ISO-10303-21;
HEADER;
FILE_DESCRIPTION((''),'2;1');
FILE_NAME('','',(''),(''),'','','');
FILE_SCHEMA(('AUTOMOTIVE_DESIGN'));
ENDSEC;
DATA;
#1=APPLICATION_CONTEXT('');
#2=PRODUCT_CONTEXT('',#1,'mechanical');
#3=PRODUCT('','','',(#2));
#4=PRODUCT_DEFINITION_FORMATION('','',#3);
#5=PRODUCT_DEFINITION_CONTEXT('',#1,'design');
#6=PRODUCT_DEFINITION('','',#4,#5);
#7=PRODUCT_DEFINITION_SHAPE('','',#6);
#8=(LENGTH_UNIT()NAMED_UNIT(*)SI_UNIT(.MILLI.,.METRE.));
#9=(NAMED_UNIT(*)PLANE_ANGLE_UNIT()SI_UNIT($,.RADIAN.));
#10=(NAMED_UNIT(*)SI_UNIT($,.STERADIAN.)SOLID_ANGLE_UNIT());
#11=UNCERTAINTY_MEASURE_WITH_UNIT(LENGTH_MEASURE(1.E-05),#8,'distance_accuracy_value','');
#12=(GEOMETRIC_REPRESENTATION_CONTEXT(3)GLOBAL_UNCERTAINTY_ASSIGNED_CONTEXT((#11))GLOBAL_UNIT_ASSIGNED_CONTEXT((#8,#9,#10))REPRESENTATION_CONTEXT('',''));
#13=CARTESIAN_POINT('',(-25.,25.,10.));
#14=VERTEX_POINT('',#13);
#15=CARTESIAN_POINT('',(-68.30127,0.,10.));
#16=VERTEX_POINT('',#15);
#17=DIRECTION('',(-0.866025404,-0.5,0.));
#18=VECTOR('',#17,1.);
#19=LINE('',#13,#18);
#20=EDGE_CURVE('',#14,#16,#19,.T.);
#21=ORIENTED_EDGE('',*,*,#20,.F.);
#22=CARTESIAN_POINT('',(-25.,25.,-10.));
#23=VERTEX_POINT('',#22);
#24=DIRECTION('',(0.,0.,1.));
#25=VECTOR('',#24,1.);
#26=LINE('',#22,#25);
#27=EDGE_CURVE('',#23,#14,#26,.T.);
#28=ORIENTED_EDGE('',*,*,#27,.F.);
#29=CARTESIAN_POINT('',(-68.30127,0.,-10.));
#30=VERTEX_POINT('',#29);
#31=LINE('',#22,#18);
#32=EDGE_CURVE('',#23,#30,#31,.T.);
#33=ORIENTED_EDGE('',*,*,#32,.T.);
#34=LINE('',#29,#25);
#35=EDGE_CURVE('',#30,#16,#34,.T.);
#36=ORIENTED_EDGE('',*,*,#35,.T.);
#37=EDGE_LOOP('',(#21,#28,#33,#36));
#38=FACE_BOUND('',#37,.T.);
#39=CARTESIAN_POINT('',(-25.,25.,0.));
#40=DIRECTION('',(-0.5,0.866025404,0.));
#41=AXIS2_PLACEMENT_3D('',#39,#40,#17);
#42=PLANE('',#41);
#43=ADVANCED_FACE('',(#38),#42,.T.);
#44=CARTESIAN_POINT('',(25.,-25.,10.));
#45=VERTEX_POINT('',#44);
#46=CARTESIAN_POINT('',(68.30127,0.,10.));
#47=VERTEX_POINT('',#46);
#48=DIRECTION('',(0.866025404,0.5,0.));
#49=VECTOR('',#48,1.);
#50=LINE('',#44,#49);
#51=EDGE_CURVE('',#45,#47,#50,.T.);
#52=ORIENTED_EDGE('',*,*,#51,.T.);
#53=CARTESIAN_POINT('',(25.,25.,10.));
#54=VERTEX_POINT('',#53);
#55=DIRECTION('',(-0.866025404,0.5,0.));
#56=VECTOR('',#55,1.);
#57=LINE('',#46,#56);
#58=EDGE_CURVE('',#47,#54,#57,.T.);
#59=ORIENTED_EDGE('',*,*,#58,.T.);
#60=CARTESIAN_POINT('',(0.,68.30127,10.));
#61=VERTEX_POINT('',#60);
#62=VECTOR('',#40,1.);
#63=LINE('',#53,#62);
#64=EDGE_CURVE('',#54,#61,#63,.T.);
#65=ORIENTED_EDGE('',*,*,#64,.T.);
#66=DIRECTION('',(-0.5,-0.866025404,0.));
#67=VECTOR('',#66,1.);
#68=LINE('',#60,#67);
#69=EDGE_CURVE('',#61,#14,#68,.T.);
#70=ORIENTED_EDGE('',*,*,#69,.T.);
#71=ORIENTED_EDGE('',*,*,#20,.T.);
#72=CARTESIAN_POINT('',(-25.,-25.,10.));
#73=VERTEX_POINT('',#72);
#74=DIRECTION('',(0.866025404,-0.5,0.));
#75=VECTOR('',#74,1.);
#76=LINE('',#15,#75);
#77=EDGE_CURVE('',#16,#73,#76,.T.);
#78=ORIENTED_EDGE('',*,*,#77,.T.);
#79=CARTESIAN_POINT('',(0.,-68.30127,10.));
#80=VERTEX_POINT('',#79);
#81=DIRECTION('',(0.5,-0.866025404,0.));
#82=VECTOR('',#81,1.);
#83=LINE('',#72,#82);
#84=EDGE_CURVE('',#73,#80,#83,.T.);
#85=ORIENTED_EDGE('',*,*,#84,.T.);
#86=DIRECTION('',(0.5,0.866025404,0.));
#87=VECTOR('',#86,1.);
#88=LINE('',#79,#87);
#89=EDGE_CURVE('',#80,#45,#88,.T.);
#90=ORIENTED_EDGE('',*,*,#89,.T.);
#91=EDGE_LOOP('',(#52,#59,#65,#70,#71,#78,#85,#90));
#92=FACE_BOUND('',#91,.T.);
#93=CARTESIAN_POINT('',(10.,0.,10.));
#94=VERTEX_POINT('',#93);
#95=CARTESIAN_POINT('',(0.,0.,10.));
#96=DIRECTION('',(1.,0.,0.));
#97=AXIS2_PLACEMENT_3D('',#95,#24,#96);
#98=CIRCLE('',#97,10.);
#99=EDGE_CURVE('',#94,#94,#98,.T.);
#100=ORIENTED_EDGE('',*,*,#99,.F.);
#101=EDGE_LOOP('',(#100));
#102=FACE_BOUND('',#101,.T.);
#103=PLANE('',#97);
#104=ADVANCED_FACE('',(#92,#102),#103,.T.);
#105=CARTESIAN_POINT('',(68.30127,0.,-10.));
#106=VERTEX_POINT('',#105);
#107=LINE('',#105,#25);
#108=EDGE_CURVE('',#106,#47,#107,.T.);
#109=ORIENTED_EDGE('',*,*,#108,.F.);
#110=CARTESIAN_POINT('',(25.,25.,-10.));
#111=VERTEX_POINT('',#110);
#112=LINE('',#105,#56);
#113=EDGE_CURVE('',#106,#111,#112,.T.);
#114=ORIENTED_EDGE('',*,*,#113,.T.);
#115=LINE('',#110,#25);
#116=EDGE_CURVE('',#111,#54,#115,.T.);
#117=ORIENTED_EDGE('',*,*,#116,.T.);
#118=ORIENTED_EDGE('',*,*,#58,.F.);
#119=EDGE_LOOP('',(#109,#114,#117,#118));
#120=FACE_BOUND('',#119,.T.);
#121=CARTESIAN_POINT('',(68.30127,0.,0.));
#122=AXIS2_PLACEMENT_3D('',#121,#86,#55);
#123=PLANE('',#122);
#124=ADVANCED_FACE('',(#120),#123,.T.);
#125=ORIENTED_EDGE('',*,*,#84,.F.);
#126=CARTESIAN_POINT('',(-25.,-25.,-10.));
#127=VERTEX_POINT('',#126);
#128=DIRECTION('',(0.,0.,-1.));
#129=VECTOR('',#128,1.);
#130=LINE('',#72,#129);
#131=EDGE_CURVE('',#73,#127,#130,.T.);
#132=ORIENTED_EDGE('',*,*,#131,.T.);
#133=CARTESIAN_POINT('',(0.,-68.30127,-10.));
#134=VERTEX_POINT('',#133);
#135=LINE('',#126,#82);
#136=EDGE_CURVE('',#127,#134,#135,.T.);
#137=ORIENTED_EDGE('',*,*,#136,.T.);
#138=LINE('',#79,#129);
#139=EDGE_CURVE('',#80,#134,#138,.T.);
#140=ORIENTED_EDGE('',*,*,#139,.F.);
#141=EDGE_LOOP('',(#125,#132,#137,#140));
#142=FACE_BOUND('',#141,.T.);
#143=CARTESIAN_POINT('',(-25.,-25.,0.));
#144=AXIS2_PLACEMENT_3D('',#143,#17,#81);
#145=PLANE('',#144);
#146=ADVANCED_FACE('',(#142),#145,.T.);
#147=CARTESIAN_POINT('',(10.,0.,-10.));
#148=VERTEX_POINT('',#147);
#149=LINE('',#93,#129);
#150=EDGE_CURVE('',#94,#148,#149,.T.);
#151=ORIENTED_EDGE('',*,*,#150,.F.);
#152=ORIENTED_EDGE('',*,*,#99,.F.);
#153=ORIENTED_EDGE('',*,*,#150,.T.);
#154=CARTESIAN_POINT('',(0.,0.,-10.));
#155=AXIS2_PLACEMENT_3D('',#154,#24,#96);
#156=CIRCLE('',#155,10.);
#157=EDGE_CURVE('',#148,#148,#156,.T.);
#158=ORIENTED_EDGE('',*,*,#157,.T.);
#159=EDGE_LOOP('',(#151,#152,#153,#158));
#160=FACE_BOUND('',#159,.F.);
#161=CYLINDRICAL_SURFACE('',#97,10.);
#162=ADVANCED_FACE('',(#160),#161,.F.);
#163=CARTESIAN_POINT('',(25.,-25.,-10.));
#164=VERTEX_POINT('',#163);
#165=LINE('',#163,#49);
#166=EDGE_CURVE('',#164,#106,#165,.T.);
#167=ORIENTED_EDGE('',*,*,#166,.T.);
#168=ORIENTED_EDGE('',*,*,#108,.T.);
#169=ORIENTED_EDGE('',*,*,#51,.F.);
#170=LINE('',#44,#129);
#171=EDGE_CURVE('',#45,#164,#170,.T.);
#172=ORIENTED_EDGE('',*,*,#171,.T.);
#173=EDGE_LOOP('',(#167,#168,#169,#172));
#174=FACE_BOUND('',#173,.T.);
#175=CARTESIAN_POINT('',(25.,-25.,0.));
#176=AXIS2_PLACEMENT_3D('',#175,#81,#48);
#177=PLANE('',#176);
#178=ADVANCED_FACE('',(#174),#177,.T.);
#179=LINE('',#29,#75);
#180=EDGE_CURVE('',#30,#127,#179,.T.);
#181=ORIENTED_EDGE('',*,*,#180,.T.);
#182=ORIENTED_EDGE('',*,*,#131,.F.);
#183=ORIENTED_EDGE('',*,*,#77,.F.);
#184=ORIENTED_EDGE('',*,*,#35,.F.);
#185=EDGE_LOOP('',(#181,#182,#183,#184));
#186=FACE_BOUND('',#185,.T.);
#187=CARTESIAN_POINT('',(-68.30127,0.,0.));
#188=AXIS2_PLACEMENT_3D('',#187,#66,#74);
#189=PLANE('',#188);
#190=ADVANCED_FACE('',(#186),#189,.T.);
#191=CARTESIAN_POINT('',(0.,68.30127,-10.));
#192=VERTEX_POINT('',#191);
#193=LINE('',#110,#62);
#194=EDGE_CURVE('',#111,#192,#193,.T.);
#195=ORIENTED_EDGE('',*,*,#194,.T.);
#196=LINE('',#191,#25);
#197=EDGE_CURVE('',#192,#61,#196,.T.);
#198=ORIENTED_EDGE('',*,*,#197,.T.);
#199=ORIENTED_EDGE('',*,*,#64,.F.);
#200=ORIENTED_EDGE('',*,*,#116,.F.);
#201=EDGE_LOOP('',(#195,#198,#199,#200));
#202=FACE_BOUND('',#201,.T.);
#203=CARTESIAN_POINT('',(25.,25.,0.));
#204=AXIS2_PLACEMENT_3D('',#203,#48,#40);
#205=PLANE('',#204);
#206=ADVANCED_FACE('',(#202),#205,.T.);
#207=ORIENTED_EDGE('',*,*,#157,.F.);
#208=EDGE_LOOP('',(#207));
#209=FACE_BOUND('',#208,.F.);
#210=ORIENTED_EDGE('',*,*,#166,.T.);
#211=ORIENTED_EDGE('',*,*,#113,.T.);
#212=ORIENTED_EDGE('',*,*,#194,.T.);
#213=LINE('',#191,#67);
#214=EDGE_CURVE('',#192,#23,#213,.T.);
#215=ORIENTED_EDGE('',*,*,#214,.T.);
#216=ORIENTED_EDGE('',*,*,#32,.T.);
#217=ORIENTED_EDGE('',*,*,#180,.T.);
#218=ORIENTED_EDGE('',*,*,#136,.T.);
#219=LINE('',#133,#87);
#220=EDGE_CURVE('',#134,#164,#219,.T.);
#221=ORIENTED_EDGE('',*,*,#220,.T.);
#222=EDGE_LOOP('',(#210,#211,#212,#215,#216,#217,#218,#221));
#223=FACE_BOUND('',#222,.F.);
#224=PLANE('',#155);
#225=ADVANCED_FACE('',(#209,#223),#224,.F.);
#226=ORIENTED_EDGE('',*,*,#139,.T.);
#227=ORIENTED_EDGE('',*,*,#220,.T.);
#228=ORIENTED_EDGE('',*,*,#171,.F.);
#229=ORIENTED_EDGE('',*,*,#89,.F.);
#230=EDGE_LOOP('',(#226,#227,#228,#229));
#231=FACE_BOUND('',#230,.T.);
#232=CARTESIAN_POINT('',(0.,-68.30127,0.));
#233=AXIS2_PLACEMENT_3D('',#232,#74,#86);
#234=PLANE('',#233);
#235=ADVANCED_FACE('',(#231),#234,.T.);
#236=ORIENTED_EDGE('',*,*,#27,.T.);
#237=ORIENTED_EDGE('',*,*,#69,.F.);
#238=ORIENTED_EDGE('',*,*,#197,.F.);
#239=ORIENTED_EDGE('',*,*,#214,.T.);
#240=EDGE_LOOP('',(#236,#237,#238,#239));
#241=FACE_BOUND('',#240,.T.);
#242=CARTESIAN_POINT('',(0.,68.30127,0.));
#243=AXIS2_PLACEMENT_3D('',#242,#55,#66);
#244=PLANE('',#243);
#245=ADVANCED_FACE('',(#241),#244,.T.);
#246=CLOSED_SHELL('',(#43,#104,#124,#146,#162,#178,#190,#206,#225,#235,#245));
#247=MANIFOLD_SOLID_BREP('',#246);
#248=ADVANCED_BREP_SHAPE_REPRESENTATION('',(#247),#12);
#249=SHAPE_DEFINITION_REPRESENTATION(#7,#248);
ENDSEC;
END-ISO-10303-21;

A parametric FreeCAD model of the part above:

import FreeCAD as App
import Part
import Sketcher

V = App.Vector
Q = App.Units.Quantity

doc = App.newDocument("Part")
params = doc.addObject("Spreadsheet::Sheet", "Params")
for row, (alias, value) in enumerate([
    ("sketch1_length", "50 mm"),
    ("pad1_length", "10 mm"),
    ("pad1_length2", "10 mm"),
    ("sketch2_diameter", "20 mm"),
], start=1):
    params.set(f"A{row}", alias)
    params.set(f"B{row}", "=" + value)
    params.setAlias(f"B{row}", alias)

body = doc.addObject("PartDesign::Body", "Body")

# Sketch on XY plane
sketch1 = body.newObject("Sketcher::SketchObject", "Sketch")
sketch1.AttachmentSupport = (doc.getObject("XY_Plane"), [""])
sketch1.MapMode = "FlatFace"
sketch1.addGeometry([
    Part.LineSegment(V(25, -25, 0), V(68, 0, 0)),  # 0
    Part.LineSegment(V(68, 0, 0), V(25, 25, 0)),  # 1
    Part.LineSegment(V(25, 25, 0), V(0, 68, 0)),  # 2
    Part.LineSegment(V(0, 68, 0), V(-25, 25, 0)),  # 3
    Part.LineSegment(V(-25, 25, 0), V(-68, 0, 0)),  # 4
    Part.LineSegment(V(-68, 0, 0), V(-25, -25, 0)),  # 5
    Part.LineSegment(V(-25, -25, 0), V(0, -68, 0)),  # 6
    Part.LineSegment(V(0, -68, 0), V(25, -25, 0)),  # 7
], False)
sketch1.addConstraint([
    Sketcher.Constraint("Coincident", 0, 2, 1, 1),
    Sketcher.Constraint("Coincident", 1, 2, 2, 1),
    Sketcher.Constraint("Coincident", 2, 2, 3, 1),
    Sketcher.Constraint("Coincident", 3, 2, 4, 1),
    Sketcher.Constraint("Coincident", 4, 2, 5, 1),
    Sketcher.Constraint("Coincident", 5, 2, 6, 1),
    Sketcher.Constraint("Coincident", 6, 2, 7, 1),
    Sketcher.Constraint("Coincident", 7, 2, 0, 1),
    Sketcher.Constraint("Symmetric", 0, 2, 4, 2, -1, 1),
    Sketcher.Constraint("Symmetric", 1, 2, 5, 2, -1, 1),
    Sketcher.Constraint("Symmetric", 2, 2, 6, 2, -1, 1),
    Sketcher.Constraint("Symmetric", 3, 2, 7, 2, -1, 1),
    Sketcher.Constraint("Symmetric", 1, 2, 3, 2, -2),
    Sketcher.Constraint("PointOnObject", 0, 2, -1),
    Sketcher.Constraint("PointOnObject", 2, 2, -2),
    Sketcher.Constraint("Perpendicular", 0, 2),
    Sketcher.Constraint("Equal", 1, 2),
    Sketcher.Constraint("Angle", 0, Q("30 deg")),
    Sketcher.Constraint("Distance", 0, Q("50 mm")),
])
sketch1.setExpression("Constraints[18]", "Params.sketch1_length")
pad1 = body.newObject("PartDesign::Pad", "Pad")
pad1.Profile = sketch1
pad1.Type = "TwoLengths"
pad1.setExpression("Length", "Params.pad1_length")
pad1.setExpression("Length2", "Params.pad1_length2")

# Sketch on XY plane
sketch2 = body.newObject("Sketcher::SketchObject", "Sketch001")
sketch2.AttachmentSupport = (doc.getObject("XY_Plane"), [""])
sketch2.MapMode = "FlatFace"
sketch2.AttachmentOffset = App.Placement(V(0, 0, 10), App.Rotation())
sketch2.addGeometry(Part.Circle(V(0, 0, 0), V(0, 0, 1), 10), False)
sketch2.addConstraint([
    Sketcher.Constraint("Coincident", 0, 3, -1, 1),
    Sketcher.Constraint("Diameter", 0, Q("20 mm")),
])
sketch2.setExpression("Constraints[1]", "Params.sketch2_diameter")
pocket1 = body.newObject("PartDesign::Pocket", "Pocket")
pocket1.Profile = sketch2
pocket1.Type = "ThroughAll"

doc.recompute()
